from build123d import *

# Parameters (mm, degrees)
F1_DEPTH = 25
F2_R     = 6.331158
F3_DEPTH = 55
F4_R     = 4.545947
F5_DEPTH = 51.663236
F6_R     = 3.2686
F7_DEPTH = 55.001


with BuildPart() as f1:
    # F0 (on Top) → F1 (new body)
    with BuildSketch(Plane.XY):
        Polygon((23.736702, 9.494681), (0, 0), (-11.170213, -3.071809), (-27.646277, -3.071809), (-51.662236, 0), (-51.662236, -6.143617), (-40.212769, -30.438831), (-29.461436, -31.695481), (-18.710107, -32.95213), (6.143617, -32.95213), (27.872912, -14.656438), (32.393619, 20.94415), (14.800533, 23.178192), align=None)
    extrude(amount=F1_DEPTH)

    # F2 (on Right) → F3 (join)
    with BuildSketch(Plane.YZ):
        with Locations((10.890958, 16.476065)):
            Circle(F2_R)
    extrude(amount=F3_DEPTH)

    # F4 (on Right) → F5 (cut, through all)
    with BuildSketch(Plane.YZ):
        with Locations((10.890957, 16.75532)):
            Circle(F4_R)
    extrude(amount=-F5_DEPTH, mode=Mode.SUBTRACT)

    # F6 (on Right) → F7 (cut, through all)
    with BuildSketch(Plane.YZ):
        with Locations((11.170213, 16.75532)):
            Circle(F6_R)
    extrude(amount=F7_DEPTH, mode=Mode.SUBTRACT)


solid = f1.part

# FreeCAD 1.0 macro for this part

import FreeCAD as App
import Part
import Sketcher


def add_polygon(sketch, points):
    """Adds a closed chain of lines whose ends are joined by coincident constraints."""
    first, n = sketch.GeometryCount, len(points)
    for a, b in zip(points, points[1:] + points[:1]):
        sketch.addGeometry(Part.LineSegment(App.Vector(*a, 0), App.Vector(*b, 0)), False)
    for i in range(n):
        sketch.addConstraint(Sketcher.Constraint("Coincident", first + i, 2, first + (i + 1) % n, 1))

doc = App.newDocument("Part")
body = doc.addObject("PartDesign::Body", "Body")

sketch1 = doc.addObject("Sketcher::SketchObject", "Sketch")
body.addObject(sketch1)
sketch1.AttachmentSupport = (doc.XY_Plane, [""])
sketch1.MapMode = "FlatFace"
add_polygon(sketch1, [(23.736702, 9.494681), (0, 0), (-11.170213, -3.071809), (-27.646277, -3.071809), (-51.662236, 0), (-51.662236, -6.143617), (-40.212769, -30.438831), (-29.461436, -31.695481), (-18.710107, -32.95213), (6.143617, -32.95213), (27.872912, -14.656438), (32.393619, 20.94415), (14.800533, 23.178192)])
sketch1.addConstraint([
    Sketcher.Constraint("Horizontal", 2),
    Sketcher.Constraint("Vertical", 4),
    Sketcher.Constraint("Horizontal", 8),
    Sketcher.Constraint("Coincident", 0, 2, -1, 1),
    Sketcher.Constraint("PointOnObject", 3, 2, -1),
    Sketcher.Constraint("DistanceY", 1, 2, 11, 2, 26.250001),
    Sketcher.Constraint("Distance", 12, 16.342998),
    Sketcher.Constraint("DistanceX", 4, 2, 6, 2, 22.2008),
    Sketcher.Constraint("DistanceY", 7, 2, 5, 2, 2.513299),
    Sketcher.Constraint("Distance", 0, 25.565211),
    Sketcher.Constraint("Distance", 1, 11.58489),
    Sketcher.Constraint("Distance", 7, 10.82452),
    Sketcher.Constraint("Distance", 9, 28.40589),
    Sketcher.Constraint("Distance", 10, 35.886469),
    Sketcher.Constraint("DistanceX", 2, 2, 2, 1, 16.476064),
    Sketcher.Constraint("DistanceX", 8, 1, 8, 2, 24.853724),
    Sketcher.Constraint("DistanceY", 4, 2, 4, 1, 6.143617),
    Sketcher.Constraint("DistanceY", 1, 2, -1, 1, 3.071809),
    Sketcher.Constraint("DistanceX", 5, 2, -1, 1, 40.212769),
    Sketcher.Constraint("DistanceY", 5, 2, -1, 1, 30.438831),
    Sketcher.Constraint("DistanceY", 6, 2, -1, 1, 31.695481),
    Sketcher.Constraint("DistanceX", -1, 1, 9, 2, 27.872912),
    Sketcher.Constraint("DistanceX", -1, 1, 10, 2, 32.393619),
    Sketcher.Constraint("DistanceY", -1, 1, 10, 2, 20.94415),
    Sketcher.Constraint("DistanceY", -1, 1, 12, 2, 9.494681),
])
pad1 = doc.addObject("PartDesign::Pad", "Pad")
body.addObject(pad1)
pad1.Profile = sketch1
pad1.Length = 25

sketch2 = doc.addObject("Sketcher::SketchObject", "Sketch001")
body.addObject(sketch2)
sketch2.AttachmentSupport = (doc.YZ_Plane, [""])
sketch2.MapMode = "FlatFace"
sketch2.addGeometry(Part.Circle(App.Vector(11, 16, 0), App.Vector(0, 0, 1), 6), False)
sketch2.addConstraint([
    Sketcher.Constraint("Diameter", 0, 12.662316),
    Sketcher.Constraint("DistanceX", -1, 1, 0, 3, 10.890958),
    Sketcher.Constraint("DistanceY", -1, 1, 0, 3, 16.476065),
])
pad2 = doc.addObject("PartDesign::Pad", "Pad001")
body.addObject(pad2)
pad2.Profile = sketch2
pad2.Length = 55

sketch3 = doc.addObject("Sketcher::SketchObject", "Sketch002")
body.addObject(sketch3)
sketch3.AttachmentSupport = (doc.YZ_Plane, [""])
sketch3.MapMode = "FlatFace"
sketch3.addGeometry(Part.Circle(App.Vector(10.9, 16.8, 0), App.Vector(0, 0, 1), 4.5), False)
sketch3.addConstraint([
    Sketcher.Constraint("Diameter", 0, 9.091894),
    Sketcher.Constraint("DistanceY", -1, 1, 0, 3, 16.75532),
    Sketcher.Constraint("DistanceX", -1, 1, 0, 3, 10.890957),
])
pocket1 = doc.addObject("PartDesign::Pocket", "Pocket")
body.addObject(pocket1)
pocket1.Profile = sketch3
pocket1.Type = "ThroughAll"

sketch4 = doc.addObject("Sketcher::SketchObject", "Sketch003")
body.addObject(sketch4)
sketch4.AttachmentSupport = (doc.YZ_Plane, [""])
sketch4.MapMode = "FlatFace"
sketch4.addGeometry(Part.Circle(App.Vector(11.2, 16.8, 0), App.Vector(0, 0, 1), 3.3), False)
sketch4.addConstraint([
    Sketcher.Constraint("Diameter", 0, 6.5372),
    Sketcher.Constraint("DistanceY", -1, 1, 0, 3, 16.75532),
    Sketcher.Constraint("DistanceX", -1, 1, 0, 3, 11.170213),
])
pocket2 = doc.addObject("PartDesign::Pocket", "Pocket001")
body.addObject(pocket2)
pocket2.Profile = sketch4
pocket2.Type = "ThroughAll"
pocket2.Reversed = True

doc.recompute()
